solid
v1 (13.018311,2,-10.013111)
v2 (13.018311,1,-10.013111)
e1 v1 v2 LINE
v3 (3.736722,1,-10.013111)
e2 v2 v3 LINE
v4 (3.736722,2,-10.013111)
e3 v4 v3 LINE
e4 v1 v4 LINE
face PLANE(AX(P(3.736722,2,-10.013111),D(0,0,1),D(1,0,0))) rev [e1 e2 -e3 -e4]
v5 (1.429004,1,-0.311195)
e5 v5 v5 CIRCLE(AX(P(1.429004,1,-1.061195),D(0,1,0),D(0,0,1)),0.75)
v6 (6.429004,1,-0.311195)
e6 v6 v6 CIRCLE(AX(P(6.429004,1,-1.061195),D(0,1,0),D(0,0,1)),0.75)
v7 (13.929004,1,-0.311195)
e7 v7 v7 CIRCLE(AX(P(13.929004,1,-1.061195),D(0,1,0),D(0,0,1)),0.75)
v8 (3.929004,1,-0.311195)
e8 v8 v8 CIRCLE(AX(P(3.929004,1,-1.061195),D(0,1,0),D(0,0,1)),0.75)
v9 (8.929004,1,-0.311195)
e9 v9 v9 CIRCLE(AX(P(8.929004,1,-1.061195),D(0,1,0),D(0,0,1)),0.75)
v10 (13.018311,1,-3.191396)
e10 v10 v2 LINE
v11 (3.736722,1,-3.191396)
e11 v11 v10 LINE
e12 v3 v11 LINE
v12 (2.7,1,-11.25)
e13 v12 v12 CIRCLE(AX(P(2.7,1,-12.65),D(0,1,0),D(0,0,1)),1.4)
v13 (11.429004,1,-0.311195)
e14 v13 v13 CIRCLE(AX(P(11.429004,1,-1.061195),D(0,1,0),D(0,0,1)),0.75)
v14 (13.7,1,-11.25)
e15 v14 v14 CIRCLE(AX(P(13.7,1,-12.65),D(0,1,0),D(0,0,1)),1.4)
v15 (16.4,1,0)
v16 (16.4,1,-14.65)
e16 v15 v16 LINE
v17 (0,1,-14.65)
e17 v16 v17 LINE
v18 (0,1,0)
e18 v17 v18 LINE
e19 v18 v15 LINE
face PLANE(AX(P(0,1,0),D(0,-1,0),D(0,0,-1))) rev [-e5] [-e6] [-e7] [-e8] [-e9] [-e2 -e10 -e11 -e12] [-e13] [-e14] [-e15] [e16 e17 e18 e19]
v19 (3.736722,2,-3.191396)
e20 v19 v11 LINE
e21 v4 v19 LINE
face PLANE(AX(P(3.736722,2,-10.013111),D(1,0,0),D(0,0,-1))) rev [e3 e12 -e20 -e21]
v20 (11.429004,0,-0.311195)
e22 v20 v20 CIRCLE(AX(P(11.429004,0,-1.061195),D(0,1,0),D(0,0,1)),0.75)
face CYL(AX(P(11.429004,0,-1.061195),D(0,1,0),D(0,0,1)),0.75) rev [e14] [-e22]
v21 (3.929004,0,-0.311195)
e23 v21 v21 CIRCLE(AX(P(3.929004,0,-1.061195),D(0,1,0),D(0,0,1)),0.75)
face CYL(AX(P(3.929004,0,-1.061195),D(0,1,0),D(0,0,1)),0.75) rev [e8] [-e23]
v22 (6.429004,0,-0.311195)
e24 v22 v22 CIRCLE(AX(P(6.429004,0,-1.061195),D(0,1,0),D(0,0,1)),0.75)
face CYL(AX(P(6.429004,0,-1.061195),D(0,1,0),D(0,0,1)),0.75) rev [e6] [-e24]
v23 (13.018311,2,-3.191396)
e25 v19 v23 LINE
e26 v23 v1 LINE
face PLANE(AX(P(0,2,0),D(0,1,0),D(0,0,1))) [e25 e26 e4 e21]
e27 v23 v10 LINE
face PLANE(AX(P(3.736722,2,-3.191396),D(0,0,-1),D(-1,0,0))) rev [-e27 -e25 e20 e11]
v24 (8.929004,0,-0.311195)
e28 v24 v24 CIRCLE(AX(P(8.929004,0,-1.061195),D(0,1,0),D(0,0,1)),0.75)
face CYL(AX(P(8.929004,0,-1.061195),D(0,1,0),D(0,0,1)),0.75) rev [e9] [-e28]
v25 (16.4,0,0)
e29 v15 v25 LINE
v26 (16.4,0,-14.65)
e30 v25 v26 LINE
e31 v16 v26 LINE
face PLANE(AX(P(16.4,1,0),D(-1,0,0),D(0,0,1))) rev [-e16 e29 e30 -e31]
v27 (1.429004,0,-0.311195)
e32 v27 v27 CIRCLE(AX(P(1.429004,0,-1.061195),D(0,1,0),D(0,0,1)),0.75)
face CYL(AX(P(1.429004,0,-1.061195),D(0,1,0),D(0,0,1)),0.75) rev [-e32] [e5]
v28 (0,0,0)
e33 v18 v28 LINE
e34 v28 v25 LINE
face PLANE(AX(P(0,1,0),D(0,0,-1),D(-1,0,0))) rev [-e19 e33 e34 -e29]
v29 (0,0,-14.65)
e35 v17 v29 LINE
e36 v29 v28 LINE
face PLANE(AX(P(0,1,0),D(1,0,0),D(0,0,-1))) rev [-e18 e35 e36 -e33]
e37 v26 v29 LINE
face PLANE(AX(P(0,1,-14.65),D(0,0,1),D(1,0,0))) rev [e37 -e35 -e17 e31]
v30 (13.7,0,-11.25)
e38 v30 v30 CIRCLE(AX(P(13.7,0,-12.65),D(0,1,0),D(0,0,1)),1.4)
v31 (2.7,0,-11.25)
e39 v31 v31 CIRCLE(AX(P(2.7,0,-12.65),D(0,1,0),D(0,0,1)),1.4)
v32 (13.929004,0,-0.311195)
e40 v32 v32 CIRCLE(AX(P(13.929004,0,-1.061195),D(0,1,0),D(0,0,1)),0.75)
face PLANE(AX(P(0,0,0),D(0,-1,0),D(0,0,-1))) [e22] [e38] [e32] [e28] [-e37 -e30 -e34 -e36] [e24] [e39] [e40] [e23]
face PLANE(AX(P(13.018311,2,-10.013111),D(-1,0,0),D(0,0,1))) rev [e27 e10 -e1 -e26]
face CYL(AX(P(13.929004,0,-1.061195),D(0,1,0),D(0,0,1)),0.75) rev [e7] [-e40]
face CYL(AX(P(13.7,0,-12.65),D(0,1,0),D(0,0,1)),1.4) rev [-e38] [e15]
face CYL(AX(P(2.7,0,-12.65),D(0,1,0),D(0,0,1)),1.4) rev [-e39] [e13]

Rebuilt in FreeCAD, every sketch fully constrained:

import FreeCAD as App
import Part
import Sketcher
from FreeCAD import Vector
Q = App.Units.Quantity

doc = App.newDocument("Part")
body = doc.addObject("PartDesign::Body", "Body")

sketch1 = doc.addObject("Sketcher::SketchObject", "Sketch")
body.addObject(sketch1)
sketch1.AttachmentSupport = (doc.XZ_Plane, [""])
sketch1.MapMode = "FlatFace"
sketch1.addGeometry(Part.LineSegment(Vector(0, -15, 0), Vector(0, 0, 0)), False)
sketch1.addGeometry(Part.LineSegment(Vector(0, 0, 0), Vector(16, 0, 0)), False)
sketch1.addGeometry(Part.LineSegment(Vector(16, 0, 0), Vector(16, -15, 0)), False)
sketch1.addGeometry(Part.LineSegment(Vector(16, -15, 0), Vector(0, -15, 0)), False)
sketch1.addConstraint(Sketcher.Constraint("Coincident", 0, 2, 1, 1))
sketch1.addConstraint(Sketcher.Constraint("Coincident", 1, 2, 2, 1))
sketch1.addConstraint(Sketcher.Constraint("Coincident", 2, 2, 3, 1))
sketch1.addConstraint(Sketcher.Constraint("Coincident", 3, 2, 0, 1))
sketch1.addConstraint(Sketcher.Constraint("Vertical", 0))
sketch1.addConstraint(Sketcher.Constraint("Horizontal", 1))
sketch1.addConstraint(Sketcher.Constraint("Vertical", 2))
sketch1.addConstraint(Sketcher.Constraint("Horizontal", 3))
sketch1.addConstraint(Sketcher.Constraint("Coincident", 0, 2, -1, 1))
sketch1.addConstraint(Sketcher.Constraint("DistanceX", 1, 1, 1, 2, Q("16.4 mm")))
sketch1.addConstraint(Sketcher.Constraint("DistanceY", 0, 1, 0, 2, Q("14.65 mm")))
pad1 = doc.addObject("PartDesign::Pad", "Pad")
body.addObject(pad1)
pad1.Profile = sketch1
pad1.Length = 1
pad1.Reversed = True

sketch2 = doc.addObject("Sketcher::SketchObject", "Sketch001")
body.addObject(sketch2)
sketch2.AttachmentSupport = (doc.XZ_Plane, [""])
sketch2.MapMode = "FlatFace"
sketch2.AttachmentOffset = App.Placement(Vector(0, 0, -1), App.Rotation())
sketch2.addGeometry(Part.Circle(Vector(1.4, -1.1, 0), Vector(0, 0, 1), 0.8), False)
sketch2.addGeometry(Part.Circle(Vector(3.9, -1.1, 0), Vector(0, 0, 1), 0.8), False)
sketch2.addGeometry(Part.Circle(Vector(6.4, -1.1, 0), Vector(0, 0, 1), 0.8), False)
sketch2.addGeometry(Part.Circle(Vector(8.9, -1.1, 0), Vector(0, 0, 1), 0.8), False)
sketch2.addGeometry(Part.Circle(Vector(11.4, -1.1, 0), Vector(0, 0, 1), 0.8), False)
sketch2.addGeometry(Part.Circle(Vector(13.9, -1.1, 0), Vector(0, 0, 1), 0.8), False)
sketch2.addGeometry(Part.Circle(Vector(2.7, -12.7, 0), Vector(0, 0, 1), 1.4), False)
sketch2.addGeometry(Part.Circle(Vector(13.7, -12.7, 0), Vector(0, 0, 1), 1.4), False)
sketch2.addConstraint(Sketcher.Constraint("Equal", 0, 1))
sketch2.addConstraint(Sketcher.Constraint("Equal", 1, 2))
sketch2.addConstraint(Sketcher.Constraint("Equal", 2, 3))
sketch2.addConstraint(Sketcher.Constraint("Equal", 3, 4))
sketch2.addConstraint(Sketcher.Constraint("Equal", 4, 5))
sketch2.addConstraint(Sketcher.Constraint("Equal", 6, 7))
sketch2.addConstraint(Sketcher.Constraint("Horizontal", 0, 3, 1, 3))
sketch2.addConstraint(Sketcher.Constraint("Horizontal", 1, 3, 2, 3))
sketch2.addConstraint(Sketcher.Constraint("Horizontal", 2, 3, 3, 3))
sketch2.addConstraint(Sketcher.Constraint("Horizontal", 3, 3, 4, 3))
sketch2.addConstraint(Sketcher.Constraint("Horizontal", 4, 3, 5, 3))
sketch2.addConstraint(Sketcher.Constraint("Horizontal", 6, 3, 7, 3))
sketch2.addConstraint(Sketcher.Constraint("Diameter", 0, Q("1.5 mm")))
sketch2.addConstraint(Sketcher.Constraint("Diameter", 6, Q("2.8 mm")))
sketch2.addConstraint(Sketcher.Constraint("DistanceX", 0, 3, 2, 3, Q("5 mm")))
sketch2.addConstraint(Sketcher.Constraint("DistanceX", 1, 3, 3, 3, Q("5 mm")))
sketch2.addConstraint(Sketcher.Constraint("DistanceX", 2, 3, 4, 3, Q("5 mm")))
sketch2.addConstraint(Sketcher.Constraint("DistanceX", 3, 3, 5, 3, Q("5 mm")))
sketch2.addConstraint(Sketcher.Constraint("DistanceX", 6, 3, 7, 3, Q("11 mm")))
sketch2.addConstraint(Sketcher.Constraint("DistanceX", -1, 1, 6, 3, Q("2.7 mm")))
sketch2.addConstraint(Sketcher.Constraint("DistanceX", 0, 3, 1, 3, Q("2.5 mm")))
sketch2.addConstraint(Sketcher.Constraint("DistanceY", 6, 3, -1, 1, Q("12.65 mm")))
sketch2.addConstraint(Sketcher.Constraint("DistanceX", -1, 1, 0, 3, Q("1.429004 mm")))
sketch2.addConstraint(Sketcher.Constraint("DistanceY", 0, 3, -1, 1, Q("1.061195 mm")))
pocket1 = doc.addObject("PartDesign::Pocket", "Pocket")
body.addObject(pocket1)
pocket1.Profile = sketch2
pocket1.Type = "ThroughAll"
pocket1.Reversed = True

sketch3 = doc.addObject("Sketcher::SketchObject", "Sketch002")
body.addObject(sketch3)
sketch3.AttachmentSupport = (doc.XZ_Plane, [""])
sketch3.MapMode = "FlatFace"
sketch3.AttachmentOffset = App.Placement(Vector(0, 0, -1), App.Rotation())
sketch3.addGeometry(Part.LineSegment(Vector(4, -10, 0), Vector(4, -3, 0)), False)
sketch3.addGeometry(Part.LineSegment(Vector(4, -3, 0), Vector(13, -3, 0)), False)
sketch3.addGeometry(Part.LineSegment(Vector(13, -3, 0), Vector(13, -10, 0)), False)
sketch3.addGeometry(Part.LineSegment(Vector(13, -10, 0), Vector(4, -10, 0)), False)
sketch3.addConstraint(Sketcher.Constraint("Coincident", 0, 2, 1, 1))
sketch3.addConstraint(Sketcher.Constraint("Coincident", 1, 2, 2, 1))
sketch3.addConstraint(Sketcher.Constraint("Coincident", 2, 2, 3, 1))
sketch3.addConstraint(Sketcher.Constraint("Coincident", 3, 2, 0, 1))
sketch3.addConstraint(Sketcher.Constraint("Vertical", 0))
sketch3.addConstraint(Sketcher.Constraint("Horizontal", 1))
sketch3.addConstraint(Sketcher.Constraint("Vertical", 2))
sketch3.addConstraint(Sketcher.Constraint("Horizontal", 3))
sketch3.addConstraint(Sketcher.Constraint("DistanceX", 1, 1, 1, 2, Q("9.281589 mm")))
sketch3.addConstraint(Sketcher.Constraint("DistanceY", 0, 1, 0, 2, Q("6.821715 mm")))
sketch3.addConstraint(Sketcher.Constraint("DistanceX", -1, 1, 0, 2, Q("3.736722 mm")))
sketch3.addConstraint(Sketcher.Constraint("DistanceY", 2, 2, -1, 1, Q("10.013111 mm")))
pad2 = doc.addObject("PartDesign::Pad", "Pad001")
body.addObject(pad2)
pad2.Profile = sketch3
pad2.Length = 1
pad2.Reversed = True

doc.recompute()
